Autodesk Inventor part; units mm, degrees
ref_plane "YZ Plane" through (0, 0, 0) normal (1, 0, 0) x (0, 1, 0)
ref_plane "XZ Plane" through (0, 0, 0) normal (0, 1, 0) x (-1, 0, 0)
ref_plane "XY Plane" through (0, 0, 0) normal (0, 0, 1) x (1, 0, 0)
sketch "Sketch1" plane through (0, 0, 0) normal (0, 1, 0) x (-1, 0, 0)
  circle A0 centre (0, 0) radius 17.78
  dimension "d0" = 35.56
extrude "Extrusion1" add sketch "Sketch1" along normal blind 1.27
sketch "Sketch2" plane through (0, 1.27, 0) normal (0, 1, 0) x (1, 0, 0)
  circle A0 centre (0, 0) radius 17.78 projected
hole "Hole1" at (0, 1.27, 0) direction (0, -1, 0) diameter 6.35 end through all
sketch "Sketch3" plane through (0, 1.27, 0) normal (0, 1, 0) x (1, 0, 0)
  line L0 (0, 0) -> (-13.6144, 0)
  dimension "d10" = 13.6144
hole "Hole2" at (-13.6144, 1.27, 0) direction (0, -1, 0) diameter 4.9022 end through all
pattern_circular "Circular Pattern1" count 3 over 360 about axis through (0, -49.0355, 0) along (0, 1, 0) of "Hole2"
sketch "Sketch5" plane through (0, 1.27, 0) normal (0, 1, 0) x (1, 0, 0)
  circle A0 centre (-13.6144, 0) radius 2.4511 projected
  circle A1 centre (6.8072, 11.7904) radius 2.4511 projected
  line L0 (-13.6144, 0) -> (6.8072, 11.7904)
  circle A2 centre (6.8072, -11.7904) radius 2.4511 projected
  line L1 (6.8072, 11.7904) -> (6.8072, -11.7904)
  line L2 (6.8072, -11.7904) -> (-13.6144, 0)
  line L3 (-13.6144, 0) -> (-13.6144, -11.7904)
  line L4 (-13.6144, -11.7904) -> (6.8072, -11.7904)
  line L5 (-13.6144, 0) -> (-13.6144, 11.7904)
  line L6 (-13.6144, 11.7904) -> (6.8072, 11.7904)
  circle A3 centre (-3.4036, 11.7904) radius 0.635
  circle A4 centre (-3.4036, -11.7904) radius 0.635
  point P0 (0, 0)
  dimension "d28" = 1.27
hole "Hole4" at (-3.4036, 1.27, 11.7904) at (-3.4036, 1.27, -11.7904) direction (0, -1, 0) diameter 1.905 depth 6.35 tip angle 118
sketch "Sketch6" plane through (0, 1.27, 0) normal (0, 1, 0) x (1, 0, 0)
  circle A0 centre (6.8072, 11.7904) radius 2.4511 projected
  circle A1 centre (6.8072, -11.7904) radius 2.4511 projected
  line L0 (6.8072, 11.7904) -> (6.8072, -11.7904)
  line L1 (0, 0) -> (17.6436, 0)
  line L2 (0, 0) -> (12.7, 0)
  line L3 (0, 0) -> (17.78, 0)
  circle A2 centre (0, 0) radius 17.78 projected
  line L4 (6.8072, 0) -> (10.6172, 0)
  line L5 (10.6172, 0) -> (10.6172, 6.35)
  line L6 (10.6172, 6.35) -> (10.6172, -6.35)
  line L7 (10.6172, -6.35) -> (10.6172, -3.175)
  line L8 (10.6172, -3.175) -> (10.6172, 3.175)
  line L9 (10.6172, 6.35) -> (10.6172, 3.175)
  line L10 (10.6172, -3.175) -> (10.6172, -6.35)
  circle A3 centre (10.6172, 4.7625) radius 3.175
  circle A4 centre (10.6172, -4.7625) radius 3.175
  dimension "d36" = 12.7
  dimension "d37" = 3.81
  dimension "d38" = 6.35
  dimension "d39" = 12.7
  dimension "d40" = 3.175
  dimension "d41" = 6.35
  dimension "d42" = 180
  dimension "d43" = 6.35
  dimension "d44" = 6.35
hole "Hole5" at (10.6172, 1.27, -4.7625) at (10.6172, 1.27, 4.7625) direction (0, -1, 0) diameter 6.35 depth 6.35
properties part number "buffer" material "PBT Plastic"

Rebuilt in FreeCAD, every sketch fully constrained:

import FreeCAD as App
import Part
import Sketcher

V = App.Vector
Q = App.Units.Quantity

doc = App.newDocument("Part")
body = doc.addObject("PartDesign::Body", "Body")

# Sketch on XZ plane
sketch1 = body.newObject("Sketcher::SketchObject", "Sketch")
sketch1.AttachmentSupport = (doc.getObject("XZ_Plane"), [""])
sketch1.MapMode = "FlatFace"
sketch1.addGeometry(Part.Circle(V(0, 0, 0), V(0, 0, 1), 18), False)
sketch1.addConstraint([
    Sketcher.Constraint("Coincident", 0, 3, -1, 1),
    Sketcher.Constraint("Diameter", 0, Q("1.4 in")),
])
pad1 = body.newObject("PartDesign::Pad", "Pad")
pad1.Profile = sketch1
pad1.Length = Q("0.05 in")
pad1.Reversed = True

# Sketch on XZ plane
sketch2 = body.newObject("Sketcher::SketchObject", "Sketch001")
sketch2.AttachmentSupport = (doc.getObject("XZ_Plane"), [""])
sketch2.MapMode = "FlatFace"
sketch2.AttachmentOffset = App.Placement(V(0, 0, -0.05 * 25.4), App.Rotation())
sketch2.addGeometry(Part.Circle(V(0, 0, 0), V(0, 0, 1), 3.2), False)
sketch2.addConstraint([
    Sketcher.Constraint("Coincident", 0, 3, -1, 1),
    Sketcher.Constraint("Diameter", 0, Q("0.25 in")),
])
doc.recompute()
hole = body.newObject("PartDesign::Hole", "Hole")
hole.Profile = sketch2
hole.ThreadType = "None"
hole.Diameter = Q("0.25 in")
hole.DepthType = "ThroughAll"
hole.Reversed = True

# Sketch on XZ plane
sketch3 = body.newObject("Sketcher::SketchObject", "Sketch002")
sketch3.AttachmentSupport = (doc.getObject("XZ_Plane"), [""])
sketch3.MapMode = "FlatFace"
sketch3.AttachmentOffset = App.Placement(V(0, 0, -0.05 * 25.4), App.Rotation())
sketch3.addGeometry(Part.Circle(V(-13.6, 0, 0), V(0, 0, 1), 2.5), False)
sketch3.addConstraint([
    Sketcher.Constraint("PointOnObject", 0, 3, -1),
    Sketcher.Constraint("Diameter", 0, Q("0.193 in")),
    Sketcher.Constraint("DistanceX", 0, 3, -1, 1, Q("0.536 in")),
])
doc.recompute()
hole2 = body.newObject("PartDesign::Hole", "Hole001")
hole2.Profile = sketch3
hole2.ThreadType = "None"
hole2.Diameter = Q("0.193 in")
hole2.DepthType = "ThroughAll"
hole2.Reversed = True
doc.recompute()

polarpattern = body.newObject("PartDesign::PolarPattern", "PolarPattern")
polarpattern.Originals = [hole2]
polarpattern.Axis = (doc.getObject("Y_Axis"), [""])
polarpattern.Angle = 360
polarpattern.Occurrences = 3
body.Tip = polarpattern

# Sketch on XZ plane
sketch4 = body.newObject("Sketcher::SketchObject", "Sketch003")
sketch4.AttachmentSupport = (doc.getObject("XZ_Plane"), [""])
sketch4.MapMode = "FlatFace"
sketch4.AttachmentOffset = App.Placement(V(0, 0, -0.05 * 25.4), App.Rotation())
sketch4.addGeometry([
    Part.Circle(V(-3.4, 11.8, 0), V(0, 0, 1), 1),
    Part.Circle(V(-3.4, -11.8, 0), V(0, 0, 1), 1),
], False)
sketch4.addConstraint([
    Sketcher.Constraint("Equal", 0, 1),
    Sketcher.Constraint("Symmetric", 0, 3, 1, 3, -1),
    Sketcher.Constraint("Diameter", 0, Q("0.075 in")),
    Sketcher.Constraint("DistanceX", 0, 3, -1, 1, Q("0.134 in")),
    Sketcher.Constraint("DistanceY", -1, 1, 0, 3, Q("0.4642 in")),
])
doc.recompute()
hole3 = body.newObject("PartDesign::Hole", "Hole002")
hole3.Profile = sketch4
hole3.ThreadType = "None"
hole3.Diameter = Q("0.075 in")
hole3.DepthType = "Dimension"
hole3.Depth = Q("0.25 in")
hole3.DrillPoint = "Angled"
hole3.DrillPointAngle = 118
hole3.Reversed = True

# Sketch on XZ plane
sketch5 = body.newObject("Sketcher::SketchObject", "Sketch004")
sketch5.AttachmentSupport = (doc.getObject("XZ_Plane"), [""])
sketch5.MapMode = "FlatFace"
sketch5.AttachmentOffset = App.Placement(V(0, 0, -0.05 * 25.4), App.Rotation())
sketch5.addGeometry([
    Part.Circle(V(10.6, -4.8, 0), V(0, 0, 1), 3.2),
    Part.Circle(V(10.6, 4.8, 0), V(0, 0, 1), 3.2),
], False)
sketch5.addConstraint([
    Sketcher.Constraint("Equal", 0, 1),
    Sketcher.Constraint("Symmetric", 0, 3, 1, 3, -1),
    Sketcher.Constraint("Diameter", 0, Q("0.25 in")),
    Sketcher.Constraint("DistanceX", -1, 1, 0, 3, Q("0.418 in")),
    Sketcher.Constraint("DistanceY", 0, 3, -1, 1, Q("0.1875 in")),
])
doc.recompute()
hole4 = body.newObject("PartDesign::Hole", "Hole003")
hole4.Profile = sketch5
hole4.ThreadType = "None"
hole4.Diameter = Q("0.25 in")
hole4.DepthType = "Dimension"
hole4.Depth = Q("0.25 in")
hole4.DrillPoint = "Flat"
hole4.Reversed = True

doc.recompute()
